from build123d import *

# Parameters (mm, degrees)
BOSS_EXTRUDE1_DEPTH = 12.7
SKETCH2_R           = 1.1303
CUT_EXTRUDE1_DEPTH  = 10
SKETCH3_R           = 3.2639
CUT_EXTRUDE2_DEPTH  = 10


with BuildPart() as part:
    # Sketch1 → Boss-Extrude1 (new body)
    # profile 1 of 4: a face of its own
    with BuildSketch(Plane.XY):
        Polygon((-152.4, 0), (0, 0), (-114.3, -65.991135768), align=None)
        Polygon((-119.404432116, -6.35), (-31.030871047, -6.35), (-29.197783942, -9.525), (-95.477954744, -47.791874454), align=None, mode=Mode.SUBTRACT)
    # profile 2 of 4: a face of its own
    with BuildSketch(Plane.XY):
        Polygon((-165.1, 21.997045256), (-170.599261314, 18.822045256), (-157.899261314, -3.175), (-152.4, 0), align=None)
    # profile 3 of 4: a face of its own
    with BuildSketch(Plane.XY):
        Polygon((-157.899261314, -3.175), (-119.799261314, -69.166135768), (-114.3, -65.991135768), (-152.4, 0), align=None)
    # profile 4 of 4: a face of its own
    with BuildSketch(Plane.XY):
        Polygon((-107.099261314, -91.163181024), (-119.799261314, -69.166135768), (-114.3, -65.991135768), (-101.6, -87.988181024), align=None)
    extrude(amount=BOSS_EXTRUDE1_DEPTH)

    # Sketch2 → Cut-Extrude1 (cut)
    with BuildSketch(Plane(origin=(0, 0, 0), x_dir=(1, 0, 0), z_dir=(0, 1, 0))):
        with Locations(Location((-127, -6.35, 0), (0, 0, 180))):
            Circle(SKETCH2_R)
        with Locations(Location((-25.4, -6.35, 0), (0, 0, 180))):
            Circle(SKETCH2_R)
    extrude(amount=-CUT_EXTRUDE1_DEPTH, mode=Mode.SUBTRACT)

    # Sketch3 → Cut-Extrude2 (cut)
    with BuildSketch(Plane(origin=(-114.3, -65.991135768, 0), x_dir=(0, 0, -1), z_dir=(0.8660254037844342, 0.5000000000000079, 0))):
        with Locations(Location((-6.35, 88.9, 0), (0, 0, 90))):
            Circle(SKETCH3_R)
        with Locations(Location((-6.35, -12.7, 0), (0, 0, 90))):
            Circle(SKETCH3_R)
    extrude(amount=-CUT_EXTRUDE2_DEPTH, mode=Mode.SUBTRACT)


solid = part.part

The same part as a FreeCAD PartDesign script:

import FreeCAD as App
import Part
import Sketcher
Q = App.Units.Quantity

doc = App.newDocument("Part")
body = doc.addObject("PartDesign::Body", "Body")

# Sketch on XY plane
sketch1 = doc.addObject("Sketcher::SketchObject", "Sketch")
body.addObject(sketch1)
sketch1.AttachmentSupport = (doc.XY_Plane, [""])
sketch1.MapMode = "FlatFace"
sketch1.addGeometry([
    Part.LineSegment(App.Vector(0, 0, 0), App.Vector(-152.4, 0, 0)),  # 0
    Part.LineSegment(App.Vector(-152.4, 0, 0), App.Vector(-165.1, 22, 0)),  # 1
    Part.LineSegment(App.Vector(-165.1, 22, 0), App.Vector(-170.6, 18.8, 0)),  # 2
    Part.LineSegment(App.Vector(-170.6, 18.8, 0), App.Vector(-107.1, -91.2, 0)),  # 3
    Part.LineSegment(App.Vector(-107.1, -91.2, 0), App.Vector(-101.6, -88, 0)),  # 4
    Part.LineSegment(App.Vector(-101.6, -88, 0), App.Vector(-114.3, -66, 0)),  # 5
    Part.LineSegment(App.Vector(-114.3, -66, 0), App.Vector(0, 0, 0)),  # 6
    Part.LineSegment(App.Vector(-119.4, -6.3, 0), App.Vector(-31, -6.3, 0)),  # 7
    Part.LineSegment(App.Vector(-31, -6.3, 0), App.Vector(-29.2, -9.5, 0)),  # 8
    Part.LineSegment(App.Vector(-29.2, -9.5, 0), App.Vector(-95.5, -47.8, 0)),  # 9
    Part.LineSegment(App.Vector(-95.5, -47.8, 0), App.Vector(-119.4, -6.3, 0)),  # 10
], False)
sketch1.addConstraint([
    Sketcher.Constraint("Coincident", 0, 2, 1, 1),
    Sketcher.Constraint("Coincident", 1, 2, 2, 1),
    Sketcher.Constraint("Coincident", 2, 2, 3, 1),
    Sketcher.Constraint("Coincident", 3, 2, 4, 1),
    Sketcher.Constraint("Coincident", 4, 2, 5, 1),
    Sketcher.Constraint("Coincident", 5, 2, 6, 1),
    Sketcher.Constraint("Coincident", 6, 2, 0, 1),
    Sketcher.Constraint("Coincident", 7, 2, 8, 1),
    Sketcher.Constraint("Coincident", 8, 2, 9, 1),
    Sketcher.Constraint("Coincident", 9, 2, 10, 1),
    Sketcher.Constraint("Coincident", 10, 2, 7, 1),
    Sketcher.Constraint("Horizontal", 0),
    Sketcher.Constraint("Horizontal", 7),
    Sketcher.Constraint("Coincident", 6, 2, -1, 1),
    Sketcher.Constraint("Perpendicular", 1, 2),
    Sketcher.Constraint("Perpendicular", 2, 3),
    Sketcher.Constraint("Perpendicular", 3, 4),
    Sketcher.Constraint("Perpendicular", 4, 5),
    Sketcher.Constraint("Perpendicular", 5, 6),
    Sketcher.Constraint("Perpendicular", 6, 8),
    Sketcher.Constraint("Perpendicular", 8, 9),
    Sketcher.Constraint("Perpendicular", 9, 10),
    Sketcher.Constraint("Equal", 2, 4),
    Sketcher.Constraint("Equal", 1, 5),
    Sketcher.Constraint("DistanceX", 0, 2, 0, 1, Q("6 in")),
    Sketcher.Constraint("Distance", 1, Q("1 in")),
    Sketcher.Constraint("Distance", 3, Q("5 in")),
    Sketcher.Constraint("Distance", 2, Q("0.25 in")),
    Sketcher.Constraint("DistanceY", 7, 2, -1, 1, Q("0.25 in")),
    Sketcher.Constraint("DistanceY", 8, 2, -1, 1, Q("0.375 in")),
    Sketcher.Constraint("DistanceX", 7, 1, 7, 2, 88.373561),
    Sketcher.Constraint("DistanceX", 7, 2, -1, 1, 31.030871),
])
pad1 = doc.addObject("PartDesign::Pad", "Pad")
body.addObject(pad1)
pad1.Profile = sketch1
pad1.Length = Q("0.5 in")

# Sketch on XZ plane
sketch2 = doc.addObject("Sketcher::SketchObject", "Sketch001")
body.addObject(sketch2)
sketch2.AttachmentSupport = (doc.XZ_Plane, [""])
sketch2.MapMode = "FlatFace"
sketch2.addGeometry([
    Part.Circle(App.Vector(-127, 6.3, 0), App.Vector(0, 0, 1), 1.1),
    Part.Circle(App.Vector(-25.4, 6.3, 0), App.Vector(0, 0, 1), 1.1),
], False)
sketch2.addConstraint([
    Sketcher.Constraint("Equal", 0, 1),
    Sketcher.Constraint("Horizontal", 0, 3, 1, 3),
    Sketcher.Constraint("Diameter", 0, Q("0.089 in")),
    Sketcher.Constraint("DistanceX", 0, 3, -1, 1, Q("5 in")),
    Sketcher.Constraint("DistanceX", 1, 3, -1, 1, Q("1 in")),
    Sketcher.Constraint("DistanceY", -1, 1, 0, 3, Q("0.25 in")),
])
pocket1 = doc.addObject("PartDesign::Pocket", "Pocket")
body.addObject(pocket1)
pocket1.Profile = sketch2
pocket1.Length = 10
pocket1.Reversed = True

# Sketch on an angled plane
sketch3 = doc.addObject("Sketcher::SketchObject", "Sketch002")
body.addObject(sketch3)
sketch3.Placement = App.Placement(App.Vector(-114.3, -65.991136, 0), App.Rotation(App.Vector(0, 0, -1), App.Vector(-0.5, 0.866025404, 0), App.Vector(0.866025404, 0.5, 0), "ZXY"))
sketch3.addGeometry([
    Part.Circle(App.Vector(-6.3, 88.9, 0), App.Vector(0, 0, 1), 3.3),
    Part.Circle(App.Vector(-6.3, -12.7, 0), App.Vector(0, 0, 1), 3.3),
], False)
sketch3.addConstraint([
    Sketcher.Constraint("Equal", 0, 1),
    Sketcher.Constraint("Vertical", 0, 3, 1, 3),
    Sketcher.Constraint("Diameter", 0, Q("0.257 in")),
    Sketcher.Constraint("DistanceY", 1, 3, 0, 3, Q("4 in")),
    Sketcher.Constraint("DistanceY", -1, 1, 0, 3, Q("3.5 in")),
    Sketcher.Constraint("DistanceX", 0, 3, -1, 1, Q("0.25 in")),
])
pocket2 = doc.addObject("PartDesign::Pocket", "Pocket001")
body.addObject(pocket2)
pocket2.Profile = sketch3
pocket2.Length = 10

doc.recompute()
